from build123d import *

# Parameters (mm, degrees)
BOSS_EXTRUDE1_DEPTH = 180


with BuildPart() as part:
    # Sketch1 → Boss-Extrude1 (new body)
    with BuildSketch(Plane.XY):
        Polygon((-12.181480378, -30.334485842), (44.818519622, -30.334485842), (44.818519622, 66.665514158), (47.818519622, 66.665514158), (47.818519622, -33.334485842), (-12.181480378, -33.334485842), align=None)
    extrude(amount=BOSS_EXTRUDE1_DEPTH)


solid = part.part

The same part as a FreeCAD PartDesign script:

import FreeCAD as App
import Part
import Sketcher

V = App.Vector
Q = App.Units.Quantity


def add_polygon(sketch, points):
    """Adds a closed chain of lines whose ends are joined by coincident constraints."""
    first, n = sketch.GeometryCount, len(points)
    for a, b in zip(points, points[1:] + points[:1]):
        sketch.addGeometry(Part.LineSegment(App.Vector(*a, 0), App.Vector(*b, 0)), False)
    for i in range(n):
        sketch.addConstraint(Sketcher.Constraint("Coincident", first + i, 2, first + (i + 1) % n, 1))

doc = App.newDocument("Part")
body = doc.addObject("PartDesign::Body", "Body")

# Sketch on XY plane
sketch1 = body.newObject("Sketcher::SketchObject", "Sketch")
sketch1.AttachmentSupport = (doc.getObject("XY_Plane"), [""])
sketch1.MapMode = "FlatFace"
add_polygon(sketch1, [(44.8, -30.3), (-12.2, -30.3), (-12.2, -33.3), (47.8, -33.3), (47.8, 66.7), (44.8, 66.7)])  # lines 0-5
sketch1.addConstraint(Sketcher.Constraint("Horizontal", 0))
sketch1.addConstraint(Sketcher.Constraint("Vertical", 1))
sketch1.addConstraint(Sketcher.Constraint("Horizontal", 2))
sketch1.addConstraint(Sketcher.Constraint("Vertical", 3))
sketch1.addConstraint(Sketcher.Constraint("Horizontal", 4))
sketch1.addConstraint(Sketcher.Constraint("Vertical", 5))
sketch1.addConstraint(Sketcher.Constraint("Equal", 4, 1))
sketch1.addConstraint(Sketcher.Constraint("DistanceX", 0, 2, 0, 1, Q("57 mm")))
sketch1.addConstraint(Sketcher.Constraint("DistanceX", 2, 1, 2, 2, Q("60 mm")))
sketch1.addConstraint(Sketcher.Constraint("DistanceY", 3, 1, 3, 2, Q("100 mm")))
sketch1.addConstraint(Sketcher.Constraint("DistanceX", 0, 2, -1, 1, Q("12.18148 mm")))
sketch1.addConstraint(Sketcher.Constraint("DistanceY", 0, 2, -1, 1, Q("30.334486 mm")))
pad1 = body.newObject("PartDesign::Pad", "Pad")
pad1.Profile = sketch1
pad1.Length = 180

doc.recompute()
